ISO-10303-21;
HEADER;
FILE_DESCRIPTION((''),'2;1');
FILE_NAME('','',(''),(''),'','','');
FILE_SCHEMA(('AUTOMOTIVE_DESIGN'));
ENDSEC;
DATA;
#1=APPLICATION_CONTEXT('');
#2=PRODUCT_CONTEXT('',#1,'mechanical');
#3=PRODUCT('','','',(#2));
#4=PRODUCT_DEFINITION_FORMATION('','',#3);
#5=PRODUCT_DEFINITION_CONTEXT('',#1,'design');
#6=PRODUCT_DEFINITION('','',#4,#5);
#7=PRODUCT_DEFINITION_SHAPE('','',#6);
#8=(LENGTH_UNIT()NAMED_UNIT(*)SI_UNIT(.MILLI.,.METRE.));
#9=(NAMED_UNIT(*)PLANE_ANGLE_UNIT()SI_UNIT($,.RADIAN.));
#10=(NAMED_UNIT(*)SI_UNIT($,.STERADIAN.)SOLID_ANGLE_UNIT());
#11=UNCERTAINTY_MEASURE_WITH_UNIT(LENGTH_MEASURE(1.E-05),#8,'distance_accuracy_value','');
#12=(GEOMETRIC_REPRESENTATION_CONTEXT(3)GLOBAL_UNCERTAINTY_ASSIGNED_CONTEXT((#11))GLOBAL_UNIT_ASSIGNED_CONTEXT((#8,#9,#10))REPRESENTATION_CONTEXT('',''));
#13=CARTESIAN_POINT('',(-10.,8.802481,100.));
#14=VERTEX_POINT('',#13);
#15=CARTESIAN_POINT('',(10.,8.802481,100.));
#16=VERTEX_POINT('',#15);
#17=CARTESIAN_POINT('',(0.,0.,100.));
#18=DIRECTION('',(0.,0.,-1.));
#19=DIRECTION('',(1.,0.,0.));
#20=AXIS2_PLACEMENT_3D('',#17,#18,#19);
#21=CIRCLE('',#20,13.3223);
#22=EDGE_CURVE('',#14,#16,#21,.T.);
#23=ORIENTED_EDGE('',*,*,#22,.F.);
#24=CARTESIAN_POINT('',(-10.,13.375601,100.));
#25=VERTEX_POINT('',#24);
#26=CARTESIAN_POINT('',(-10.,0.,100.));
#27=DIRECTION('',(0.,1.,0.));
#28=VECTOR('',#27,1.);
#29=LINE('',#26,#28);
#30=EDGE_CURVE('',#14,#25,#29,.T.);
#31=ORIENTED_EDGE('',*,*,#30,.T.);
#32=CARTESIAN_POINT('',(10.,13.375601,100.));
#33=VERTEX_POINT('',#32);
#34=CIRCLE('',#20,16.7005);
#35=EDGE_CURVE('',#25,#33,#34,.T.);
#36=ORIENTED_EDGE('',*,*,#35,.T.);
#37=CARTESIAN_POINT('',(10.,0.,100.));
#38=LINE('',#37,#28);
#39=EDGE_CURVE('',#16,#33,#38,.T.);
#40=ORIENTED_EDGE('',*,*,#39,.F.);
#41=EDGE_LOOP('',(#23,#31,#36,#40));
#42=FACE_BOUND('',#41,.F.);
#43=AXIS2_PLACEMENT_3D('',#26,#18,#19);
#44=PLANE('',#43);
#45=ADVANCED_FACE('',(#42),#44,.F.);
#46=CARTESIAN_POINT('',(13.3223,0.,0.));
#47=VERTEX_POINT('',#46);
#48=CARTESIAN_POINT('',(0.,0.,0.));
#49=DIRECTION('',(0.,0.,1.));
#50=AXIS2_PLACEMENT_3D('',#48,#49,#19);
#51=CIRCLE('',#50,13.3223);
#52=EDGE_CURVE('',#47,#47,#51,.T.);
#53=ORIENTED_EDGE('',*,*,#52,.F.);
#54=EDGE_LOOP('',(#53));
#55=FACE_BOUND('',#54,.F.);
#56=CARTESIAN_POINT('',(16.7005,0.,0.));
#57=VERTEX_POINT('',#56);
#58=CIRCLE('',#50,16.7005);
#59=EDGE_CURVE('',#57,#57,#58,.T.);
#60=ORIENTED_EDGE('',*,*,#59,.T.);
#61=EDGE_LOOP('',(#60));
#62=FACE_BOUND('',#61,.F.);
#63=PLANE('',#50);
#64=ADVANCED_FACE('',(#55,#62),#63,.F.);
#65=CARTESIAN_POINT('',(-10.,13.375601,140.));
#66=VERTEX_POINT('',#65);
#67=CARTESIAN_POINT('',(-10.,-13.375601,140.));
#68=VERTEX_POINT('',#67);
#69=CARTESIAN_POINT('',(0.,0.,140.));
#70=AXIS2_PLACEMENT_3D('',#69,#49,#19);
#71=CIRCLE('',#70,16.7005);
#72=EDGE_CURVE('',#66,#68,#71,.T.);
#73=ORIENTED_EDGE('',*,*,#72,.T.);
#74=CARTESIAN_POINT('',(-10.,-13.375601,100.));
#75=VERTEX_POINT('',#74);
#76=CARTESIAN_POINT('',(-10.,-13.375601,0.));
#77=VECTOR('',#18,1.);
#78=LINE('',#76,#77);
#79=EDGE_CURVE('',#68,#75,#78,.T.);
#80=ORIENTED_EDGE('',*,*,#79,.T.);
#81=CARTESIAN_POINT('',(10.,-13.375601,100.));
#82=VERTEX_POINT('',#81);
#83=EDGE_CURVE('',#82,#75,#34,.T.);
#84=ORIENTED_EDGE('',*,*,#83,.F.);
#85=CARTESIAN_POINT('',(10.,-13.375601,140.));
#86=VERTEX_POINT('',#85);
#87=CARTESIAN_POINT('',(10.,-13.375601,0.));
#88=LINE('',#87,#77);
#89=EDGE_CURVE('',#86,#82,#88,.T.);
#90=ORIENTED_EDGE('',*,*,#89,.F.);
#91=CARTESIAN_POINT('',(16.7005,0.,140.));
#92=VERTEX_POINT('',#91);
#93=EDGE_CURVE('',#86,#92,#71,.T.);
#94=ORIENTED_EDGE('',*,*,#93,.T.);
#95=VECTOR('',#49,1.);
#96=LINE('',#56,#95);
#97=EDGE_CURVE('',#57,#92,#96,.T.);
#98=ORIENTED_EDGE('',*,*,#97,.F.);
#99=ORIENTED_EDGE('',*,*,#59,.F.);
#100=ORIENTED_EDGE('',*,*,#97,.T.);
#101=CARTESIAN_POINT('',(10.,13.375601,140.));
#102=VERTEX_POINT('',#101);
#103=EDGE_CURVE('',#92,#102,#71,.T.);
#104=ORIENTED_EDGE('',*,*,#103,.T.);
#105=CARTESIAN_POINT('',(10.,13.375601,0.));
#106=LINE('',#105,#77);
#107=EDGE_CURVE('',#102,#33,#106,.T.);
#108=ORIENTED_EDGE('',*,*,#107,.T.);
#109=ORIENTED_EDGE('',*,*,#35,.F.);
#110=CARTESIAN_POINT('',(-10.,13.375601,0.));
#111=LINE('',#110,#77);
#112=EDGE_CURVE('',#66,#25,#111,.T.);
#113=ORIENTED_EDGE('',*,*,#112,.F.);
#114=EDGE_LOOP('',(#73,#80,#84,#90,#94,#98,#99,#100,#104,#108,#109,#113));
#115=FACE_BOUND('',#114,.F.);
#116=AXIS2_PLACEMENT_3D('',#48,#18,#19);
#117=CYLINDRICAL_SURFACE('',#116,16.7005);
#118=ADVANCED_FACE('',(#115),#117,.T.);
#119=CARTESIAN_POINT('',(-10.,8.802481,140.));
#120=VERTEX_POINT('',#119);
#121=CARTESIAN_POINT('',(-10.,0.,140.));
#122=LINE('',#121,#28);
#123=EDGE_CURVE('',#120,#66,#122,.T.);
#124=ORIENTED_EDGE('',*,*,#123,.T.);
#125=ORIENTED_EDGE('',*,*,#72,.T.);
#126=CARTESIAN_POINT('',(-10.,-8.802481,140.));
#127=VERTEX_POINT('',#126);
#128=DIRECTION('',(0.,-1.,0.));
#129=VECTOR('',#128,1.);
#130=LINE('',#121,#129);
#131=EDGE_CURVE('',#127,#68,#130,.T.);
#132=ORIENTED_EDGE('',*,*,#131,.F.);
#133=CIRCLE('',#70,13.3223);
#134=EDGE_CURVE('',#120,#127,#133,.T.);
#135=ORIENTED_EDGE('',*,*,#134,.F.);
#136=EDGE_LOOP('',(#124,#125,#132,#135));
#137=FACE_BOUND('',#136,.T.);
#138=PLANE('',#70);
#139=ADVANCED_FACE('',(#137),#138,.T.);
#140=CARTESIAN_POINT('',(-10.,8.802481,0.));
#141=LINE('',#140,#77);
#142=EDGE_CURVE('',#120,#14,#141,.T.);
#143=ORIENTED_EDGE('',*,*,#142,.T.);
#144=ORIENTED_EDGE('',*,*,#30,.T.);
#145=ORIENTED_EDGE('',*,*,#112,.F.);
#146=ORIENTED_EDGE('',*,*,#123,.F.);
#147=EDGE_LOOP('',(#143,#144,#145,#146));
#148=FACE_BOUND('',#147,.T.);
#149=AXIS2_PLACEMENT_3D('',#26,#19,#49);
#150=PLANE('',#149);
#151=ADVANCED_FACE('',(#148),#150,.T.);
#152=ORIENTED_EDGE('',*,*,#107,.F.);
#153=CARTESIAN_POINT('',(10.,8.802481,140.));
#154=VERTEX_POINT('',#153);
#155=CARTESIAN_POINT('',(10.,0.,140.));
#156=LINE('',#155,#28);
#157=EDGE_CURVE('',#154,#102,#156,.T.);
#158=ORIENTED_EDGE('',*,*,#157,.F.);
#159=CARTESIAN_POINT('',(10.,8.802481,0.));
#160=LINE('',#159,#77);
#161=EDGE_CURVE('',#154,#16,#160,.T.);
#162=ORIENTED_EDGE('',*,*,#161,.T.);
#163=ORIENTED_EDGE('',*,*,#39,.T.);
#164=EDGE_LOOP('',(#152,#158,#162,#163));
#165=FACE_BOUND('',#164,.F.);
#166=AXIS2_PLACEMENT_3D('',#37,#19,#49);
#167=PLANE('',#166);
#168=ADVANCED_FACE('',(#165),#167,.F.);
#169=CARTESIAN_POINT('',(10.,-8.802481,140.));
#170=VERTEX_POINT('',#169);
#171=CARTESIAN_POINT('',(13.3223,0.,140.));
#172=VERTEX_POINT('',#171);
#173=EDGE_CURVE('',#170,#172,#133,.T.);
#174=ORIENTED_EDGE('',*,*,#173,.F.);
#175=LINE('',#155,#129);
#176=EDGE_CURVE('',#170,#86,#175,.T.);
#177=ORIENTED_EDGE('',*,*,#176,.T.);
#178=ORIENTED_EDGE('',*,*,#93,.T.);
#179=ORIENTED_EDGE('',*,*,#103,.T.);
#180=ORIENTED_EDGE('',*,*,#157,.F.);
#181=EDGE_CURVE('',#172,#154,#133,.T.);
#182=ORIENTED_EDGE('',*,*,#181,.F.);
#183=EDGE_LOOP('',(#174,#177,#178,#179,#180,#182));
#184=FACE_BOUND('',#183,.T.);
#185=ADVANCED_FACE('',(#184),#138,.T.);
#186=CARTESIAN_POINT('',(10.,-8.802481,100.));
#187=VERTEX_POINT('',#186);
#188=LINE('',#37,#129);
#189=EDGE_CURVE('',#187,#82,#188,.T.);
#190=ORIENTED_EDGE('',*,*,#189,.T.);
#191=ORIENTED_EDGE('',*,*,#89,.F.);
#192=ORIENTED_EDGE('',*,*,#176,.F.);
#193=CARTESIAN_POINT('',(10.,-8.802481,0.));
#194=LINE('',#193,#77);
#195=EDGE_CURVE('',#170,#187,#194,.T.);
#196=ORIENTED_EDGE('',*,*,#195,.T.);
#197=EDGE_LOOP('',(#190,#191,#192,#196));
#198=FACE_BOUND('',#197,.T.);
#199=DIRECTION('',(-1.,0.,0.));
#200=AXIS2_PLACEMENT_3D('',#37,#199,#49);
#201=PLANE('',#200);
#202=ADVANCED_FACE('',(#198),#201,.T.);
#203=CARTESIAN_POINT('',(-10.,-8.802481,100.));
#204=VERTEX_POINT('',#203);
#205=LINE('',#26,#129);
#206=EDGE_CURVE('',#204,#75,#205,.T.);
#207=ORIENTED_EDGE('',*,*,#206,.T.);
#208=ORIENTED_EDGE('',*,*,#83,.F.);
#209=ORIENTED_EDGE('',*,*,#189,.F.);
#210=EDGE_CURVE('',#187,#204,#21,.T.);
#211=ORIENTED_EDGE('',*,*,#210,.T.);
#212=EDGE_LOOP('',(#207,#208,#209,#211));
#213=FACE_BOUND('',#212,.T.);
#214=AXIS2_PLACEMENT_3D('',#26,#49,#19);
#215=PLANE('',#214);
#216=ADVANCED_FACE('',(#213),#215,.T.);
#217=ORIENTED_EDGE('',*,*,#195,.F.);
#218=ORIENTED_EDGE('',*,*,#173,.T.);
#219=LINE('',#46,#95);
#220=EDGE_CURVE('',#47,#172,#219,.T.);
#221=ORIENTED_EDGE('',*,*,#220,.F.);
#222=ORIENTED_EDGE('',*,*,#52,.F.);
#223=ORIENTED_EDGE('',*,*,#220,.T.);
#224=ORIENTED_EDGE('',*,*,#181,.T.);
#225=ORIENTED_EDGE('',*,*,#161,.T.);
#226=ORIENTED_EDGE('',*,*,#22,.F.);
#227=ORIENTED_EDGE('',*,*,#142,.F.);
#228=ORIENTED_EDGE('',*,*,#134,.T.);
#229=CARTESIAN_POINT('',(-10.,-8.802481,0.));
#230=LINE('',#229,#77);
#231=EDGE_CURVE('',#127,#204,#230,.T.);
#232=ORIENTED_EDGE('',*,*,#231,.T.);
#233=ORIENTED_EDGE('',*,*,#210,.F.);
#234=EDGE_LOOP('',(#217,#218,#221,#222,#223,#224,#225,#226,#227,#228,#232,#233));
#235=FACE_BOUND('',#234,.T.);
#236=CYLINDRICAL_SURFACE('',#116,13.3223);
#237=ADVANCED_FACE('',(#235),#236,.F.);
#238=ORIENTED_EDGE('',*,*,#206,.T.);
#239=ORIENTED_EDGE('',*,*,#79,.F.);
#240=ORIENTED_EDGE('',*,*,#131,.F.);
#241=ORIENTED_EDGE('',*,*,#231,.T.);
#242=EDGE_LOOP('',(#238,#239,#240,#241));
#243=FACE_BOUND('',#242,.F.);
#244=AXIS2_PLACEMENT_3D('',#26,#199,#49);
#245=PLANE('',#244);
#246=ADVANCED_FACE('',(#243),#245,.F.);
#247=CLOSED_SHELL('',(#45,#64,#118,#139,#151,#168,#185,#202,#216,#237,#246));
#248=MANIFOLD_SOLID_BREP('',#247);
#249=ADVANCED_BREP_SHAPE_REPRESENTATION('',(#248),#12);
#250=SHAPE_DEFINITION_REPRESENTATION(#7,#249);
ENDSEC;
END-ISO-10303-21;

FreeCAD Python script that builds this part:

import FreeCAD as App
import Part
import Sketcher
from FreeCAD import Vector
Q = App.Units.Quantity


def add_polygon(sketch, points):
    """Adds a closed chain of lines whose ends are joined by coincident constraints."""
    first, n = sketch.GeometryCount, len(points)
    for a, b in zip(points, points[1:] + points[:1]):
        sketch.addGeometry(Part.LineSegment(App.Vector(*a, 0), App.Vector(*b, 0)), False)
    for i in range(n):
        sketch.addConstraint(Sketcher.Constraint("Coincident", first + i, 2, first + (i + 1) % n, 1))

doc = App.newDocument("Part")
body = doc.addObject("PartDesign::Body", "Body")

# Sketch on XY plane
sketch1 = body.newObject("Sketcher::SketchObject", "Sketch")
sketch1.AttachmentSupport = (doc.getObject("XY_Plane"), [""])
sketch1.MapMode = "FlatFace"
sketch1.addGeometry([
    Part.Circle(Vector(0, 0, 0), Vector(0, 0, 1), 17),
    Part.Circle(Vector(0, 0, 0), Vector(0, 0, 1), 13),
], False)
sketch1.addConstraint([
    Sketcher.Constraint("Coincident", 0, 3, -1, 1),
    Sketcher.Constraint("Coincident", 1, 3, -1, 1),
    Sketcher.Constraint("Diameter", 0, Q("33.401 mm")),
    Sketcher.Constraint("Diameter", 1, Q("26.6446 mm")),
])
pad1 = body.newObject("PartDesign::Pad", "Pad")
pad1.Profile = sketch1
pad1.Length = 140

# Sketch on XZ plane
sketch2 = body.newObject("Sketcher::SketchObject", "Sketch001")
sketch2.AttachmentSupport = (doc.getObject("XZ_Plane"), [""])
sketch2.MapMode = "FlatFace"
add_polygon(sketch2, [(-10, 140), (-10, 100), (10, 100), (10, 140)])  # lines 0-3
sketch2.addConstraint([
    Sketcher.Constraint("Vertical", 0),
    Sketcher.Constraint("Horizontal", 1),
    Sketcher.Constraint("Vertical", 2),
    Sketcher.Constraint("Horizontal", 3),
    Sketcher.Constraint("DistanceX", 1, 1, 1, 2, Q("20 mm")),
    Sketcher.Constraint("DistanceY", 0, 2, 0, 1, Q("40 mm")),
    Sketcher.Constraint("DistanceX", 0, 2, -1, 1, Q("10 mm")),
    Sketcher.Constraint("DistanceY", -1, 1, 0, 2, Q("100 mm")),
])
pocket1 = body.newObject("PartDesign::Pocket", "Pocket")
pocket1.Profile = sketch2
pocket1.Type = "ThroughAll"
pocket1.Midplane = True

doc.recompute()
